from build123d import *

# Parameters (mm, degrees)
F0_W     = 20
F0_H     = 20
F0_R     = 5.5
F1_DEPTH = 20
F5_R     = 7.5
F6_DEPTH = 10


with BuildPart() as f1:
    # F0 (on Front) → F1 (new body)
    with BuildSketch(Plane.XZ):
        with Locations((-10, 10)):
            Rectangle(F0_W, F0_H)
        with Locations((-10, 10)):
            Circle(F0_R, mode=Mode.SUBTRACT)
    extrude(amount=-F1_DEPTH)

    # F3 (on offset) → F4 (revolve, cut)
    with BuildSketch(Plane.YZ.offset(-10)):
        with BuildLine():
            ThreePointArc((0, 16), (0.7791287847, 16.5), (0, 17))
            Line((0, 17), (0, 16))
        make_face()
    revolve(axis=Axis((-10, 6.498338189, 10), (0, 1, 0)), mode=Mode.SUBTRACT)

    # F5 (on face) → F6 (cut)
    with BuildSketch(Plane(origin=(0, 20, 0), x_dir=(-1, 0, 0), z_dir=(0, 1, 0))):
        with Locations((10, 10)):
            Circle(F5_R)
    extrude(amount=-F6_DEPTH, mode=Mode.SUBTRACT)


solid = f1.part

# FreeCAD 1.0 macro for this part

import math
import FreeCAD as App
import Part
import Sketcher

doc = App.newDocument("Part")
body = doc.addObject("PartDesign::Body", "Body")

sketch1 = body.newObject("Sketcher::SketchObject", "Sketch")
sketch1.AttachmentSupport = (doc.getObject("XZ_Plane"), [""])
sketch1.MapMode = "FlatFace"
sketch1.addGeometry(Part.LineSegment(App.Vector(-20, 20, 0), App.Vector(-20, 0, 0)), False)
sketch1.addGeometry(Part.LineSegment(App.Vector(-20, 0, 0), App.Vector(0, 0, 0)), False)
sketch1.addGeometry(Part.LineSegment(App.Vector(0, 0, 0), App.Vector(0, 20, 0)), False)
sketch1.addGeometry(Part.LineSegment(App.Vector(0, 20, 0), App.Vector(-20, 20, 0)), False)
sketch1.addGeometry(Part.Circle(App.Vector(-10, 10, 0), App.Vector(0, 0, 1), 6), False)
sketch1.addConstraint(Sketcher.Constraint("Coincident", 0, 2, 1, 1))
sketch1.addConstraint(Sketcher.Constraint("Coincident", 1, 2, 2, 1))
sketch1.addConstraint(Sketcher.Constraint("Coincident", 2, 2, 3, 1))
sketch1.addConstraint(Sketcher.Constraint("Coincident", 3, 2, 0, 1))
sketch1.addConstraint(Sketcher.Constraint("Vertical", 0))
sketch1.addConstraint(Sketcher.Constraint("Horizontal", 1))
sketch1.addConstraint(Sketcher.Constraint("Vertical", 2))
sketch1.addConstraint(Sketcher.Constraint("Horizontal", 3))
sketch1.addConstraint(Sketcher.Constraint("Coincident", 1, 2, -1, 1))
sketch1.addConstraint(Sketcher.Constraint("Equal", 3, 0))
sketch1.addConstraint(Sketcher.Constraint("Diameter", 4, 11.0))
sketch1.addConstraint(Sketcher.Constraint("DistanceX", 1, 1, 1, 2, 20.0))
sketch1.addConstraint(Sketcher.Constraint("DistanceX", 4, 3, -1, 1, 10.0))
sketch1.addConstraint(Sketcher.Constraint("DistanceY", -1, 1, 4, 3, 10.0))
pad1 = body.newObject("PartDesign::Pad", "Pad")
pad1.Profile = sketch1
pad1.Length = 20
pad1.Reversed = True

sketch2 = body.newObject("Sketcher::SketchObject", "Sketch001")
sketch2.AttachmentSupport = (doc.getObject("YZ_Plane"), [""])
sketch2.MapMode = "FlatFace"
sketch2.AttachmentOffset = App.Placement(App.Vector(0, 0, -10), App.Rotation())
sketch2.addGeometry(Part.ArcOfCircle(Part.Circle(App.Vector(0.23, 16.5, 0), App.Vector(0, 0, 1), 0.55), math.radians(-115), math.radians(115)), False)
sketch2.addGeometry(Part.LineSegment(App.Vector(0, 17, 0), App.Vector(0, 16, 0)), False)
sketch2.addGeometry(Part.LineSegment(App.Vector(0, 10, 0), App.Vector(0.23, 10, 0)), True)
sketch2.addConstraint(Sketcher.Constraint("Coincident", 0, 1, 1, 2))
sketch2.addConstraint(Sketcher.Constraint("Coincident", 1, 1, 0, 2))
sketch2.addConstraint(Sketcher.Constraint("Vertical", 1))
sketch2.addConstraint(Sketcher.Constraint("Horizontal", 2))
sketch2.addConstraint(Sketcher.Constraint("PointOnObject", 0, 1, -2))
sketch2.addConstraint(Sketcher.Constraint("PointOnObject", 2, 1, -2))
sketch2.addConstraint(Sketcher.Constraint("Vertical", 0, 3, 2, 2))
sketch2.addConstraint(Sketcher.Constraint("DistanceY", 1, 2, 1, 1, 1.0))
sketch2.addConstraint(Sketcher.Constraint("Radius", 0, 0.55))
sketch2.addConstraint(Sketcher.Constraint("DistanceY", -1, 1, 0, 1, 16.0))
sketch2.addConstraint(Sketcher.Constraint("DistanceY", -1, 1, 2, 1, 10.0))
groove = body.newObject("PartDesign::Groove", "Groove")
groove.Profile = sketch2
groove.ReferenceAxis = (sketch2, ["Axis0"])
groove.Angle = 360

sketch3 = body.newObject("Sketcher::SketchObject", "Sketch002")
sketch3.AttachmentSupport = (doc.getObject("XZ_Plane"), [""])
sketch3.MapMode = "FlatFace"
sketch3.AttachmentOffset = App.Placement(App.Vector(0, 0, -20), App.Rotation())
sketch3.addGeometry(Part.Circle(App.Vector(-10, 10, 0), App.Vector(0, 0, 1), 8), False)
sketch3.addConstraint(Sketcher.Constraint("Diameter", 0, 15.0))
sketch3.addConstraint(Sketcher.Constraint("DistanceX", 0, 3, -1, 1, 10.0))
sketch3.addConstraint(Sketcher.Constraint("DistanceY", -1, 1, 0, 3, 10.0))
pocket1 = body.newObject("PartDesign::Pocket", "Pocket")
pocket1.Profile = sketch3
pocket1.Length = 10
pocket1.Reversed = True

doc.recompute()
